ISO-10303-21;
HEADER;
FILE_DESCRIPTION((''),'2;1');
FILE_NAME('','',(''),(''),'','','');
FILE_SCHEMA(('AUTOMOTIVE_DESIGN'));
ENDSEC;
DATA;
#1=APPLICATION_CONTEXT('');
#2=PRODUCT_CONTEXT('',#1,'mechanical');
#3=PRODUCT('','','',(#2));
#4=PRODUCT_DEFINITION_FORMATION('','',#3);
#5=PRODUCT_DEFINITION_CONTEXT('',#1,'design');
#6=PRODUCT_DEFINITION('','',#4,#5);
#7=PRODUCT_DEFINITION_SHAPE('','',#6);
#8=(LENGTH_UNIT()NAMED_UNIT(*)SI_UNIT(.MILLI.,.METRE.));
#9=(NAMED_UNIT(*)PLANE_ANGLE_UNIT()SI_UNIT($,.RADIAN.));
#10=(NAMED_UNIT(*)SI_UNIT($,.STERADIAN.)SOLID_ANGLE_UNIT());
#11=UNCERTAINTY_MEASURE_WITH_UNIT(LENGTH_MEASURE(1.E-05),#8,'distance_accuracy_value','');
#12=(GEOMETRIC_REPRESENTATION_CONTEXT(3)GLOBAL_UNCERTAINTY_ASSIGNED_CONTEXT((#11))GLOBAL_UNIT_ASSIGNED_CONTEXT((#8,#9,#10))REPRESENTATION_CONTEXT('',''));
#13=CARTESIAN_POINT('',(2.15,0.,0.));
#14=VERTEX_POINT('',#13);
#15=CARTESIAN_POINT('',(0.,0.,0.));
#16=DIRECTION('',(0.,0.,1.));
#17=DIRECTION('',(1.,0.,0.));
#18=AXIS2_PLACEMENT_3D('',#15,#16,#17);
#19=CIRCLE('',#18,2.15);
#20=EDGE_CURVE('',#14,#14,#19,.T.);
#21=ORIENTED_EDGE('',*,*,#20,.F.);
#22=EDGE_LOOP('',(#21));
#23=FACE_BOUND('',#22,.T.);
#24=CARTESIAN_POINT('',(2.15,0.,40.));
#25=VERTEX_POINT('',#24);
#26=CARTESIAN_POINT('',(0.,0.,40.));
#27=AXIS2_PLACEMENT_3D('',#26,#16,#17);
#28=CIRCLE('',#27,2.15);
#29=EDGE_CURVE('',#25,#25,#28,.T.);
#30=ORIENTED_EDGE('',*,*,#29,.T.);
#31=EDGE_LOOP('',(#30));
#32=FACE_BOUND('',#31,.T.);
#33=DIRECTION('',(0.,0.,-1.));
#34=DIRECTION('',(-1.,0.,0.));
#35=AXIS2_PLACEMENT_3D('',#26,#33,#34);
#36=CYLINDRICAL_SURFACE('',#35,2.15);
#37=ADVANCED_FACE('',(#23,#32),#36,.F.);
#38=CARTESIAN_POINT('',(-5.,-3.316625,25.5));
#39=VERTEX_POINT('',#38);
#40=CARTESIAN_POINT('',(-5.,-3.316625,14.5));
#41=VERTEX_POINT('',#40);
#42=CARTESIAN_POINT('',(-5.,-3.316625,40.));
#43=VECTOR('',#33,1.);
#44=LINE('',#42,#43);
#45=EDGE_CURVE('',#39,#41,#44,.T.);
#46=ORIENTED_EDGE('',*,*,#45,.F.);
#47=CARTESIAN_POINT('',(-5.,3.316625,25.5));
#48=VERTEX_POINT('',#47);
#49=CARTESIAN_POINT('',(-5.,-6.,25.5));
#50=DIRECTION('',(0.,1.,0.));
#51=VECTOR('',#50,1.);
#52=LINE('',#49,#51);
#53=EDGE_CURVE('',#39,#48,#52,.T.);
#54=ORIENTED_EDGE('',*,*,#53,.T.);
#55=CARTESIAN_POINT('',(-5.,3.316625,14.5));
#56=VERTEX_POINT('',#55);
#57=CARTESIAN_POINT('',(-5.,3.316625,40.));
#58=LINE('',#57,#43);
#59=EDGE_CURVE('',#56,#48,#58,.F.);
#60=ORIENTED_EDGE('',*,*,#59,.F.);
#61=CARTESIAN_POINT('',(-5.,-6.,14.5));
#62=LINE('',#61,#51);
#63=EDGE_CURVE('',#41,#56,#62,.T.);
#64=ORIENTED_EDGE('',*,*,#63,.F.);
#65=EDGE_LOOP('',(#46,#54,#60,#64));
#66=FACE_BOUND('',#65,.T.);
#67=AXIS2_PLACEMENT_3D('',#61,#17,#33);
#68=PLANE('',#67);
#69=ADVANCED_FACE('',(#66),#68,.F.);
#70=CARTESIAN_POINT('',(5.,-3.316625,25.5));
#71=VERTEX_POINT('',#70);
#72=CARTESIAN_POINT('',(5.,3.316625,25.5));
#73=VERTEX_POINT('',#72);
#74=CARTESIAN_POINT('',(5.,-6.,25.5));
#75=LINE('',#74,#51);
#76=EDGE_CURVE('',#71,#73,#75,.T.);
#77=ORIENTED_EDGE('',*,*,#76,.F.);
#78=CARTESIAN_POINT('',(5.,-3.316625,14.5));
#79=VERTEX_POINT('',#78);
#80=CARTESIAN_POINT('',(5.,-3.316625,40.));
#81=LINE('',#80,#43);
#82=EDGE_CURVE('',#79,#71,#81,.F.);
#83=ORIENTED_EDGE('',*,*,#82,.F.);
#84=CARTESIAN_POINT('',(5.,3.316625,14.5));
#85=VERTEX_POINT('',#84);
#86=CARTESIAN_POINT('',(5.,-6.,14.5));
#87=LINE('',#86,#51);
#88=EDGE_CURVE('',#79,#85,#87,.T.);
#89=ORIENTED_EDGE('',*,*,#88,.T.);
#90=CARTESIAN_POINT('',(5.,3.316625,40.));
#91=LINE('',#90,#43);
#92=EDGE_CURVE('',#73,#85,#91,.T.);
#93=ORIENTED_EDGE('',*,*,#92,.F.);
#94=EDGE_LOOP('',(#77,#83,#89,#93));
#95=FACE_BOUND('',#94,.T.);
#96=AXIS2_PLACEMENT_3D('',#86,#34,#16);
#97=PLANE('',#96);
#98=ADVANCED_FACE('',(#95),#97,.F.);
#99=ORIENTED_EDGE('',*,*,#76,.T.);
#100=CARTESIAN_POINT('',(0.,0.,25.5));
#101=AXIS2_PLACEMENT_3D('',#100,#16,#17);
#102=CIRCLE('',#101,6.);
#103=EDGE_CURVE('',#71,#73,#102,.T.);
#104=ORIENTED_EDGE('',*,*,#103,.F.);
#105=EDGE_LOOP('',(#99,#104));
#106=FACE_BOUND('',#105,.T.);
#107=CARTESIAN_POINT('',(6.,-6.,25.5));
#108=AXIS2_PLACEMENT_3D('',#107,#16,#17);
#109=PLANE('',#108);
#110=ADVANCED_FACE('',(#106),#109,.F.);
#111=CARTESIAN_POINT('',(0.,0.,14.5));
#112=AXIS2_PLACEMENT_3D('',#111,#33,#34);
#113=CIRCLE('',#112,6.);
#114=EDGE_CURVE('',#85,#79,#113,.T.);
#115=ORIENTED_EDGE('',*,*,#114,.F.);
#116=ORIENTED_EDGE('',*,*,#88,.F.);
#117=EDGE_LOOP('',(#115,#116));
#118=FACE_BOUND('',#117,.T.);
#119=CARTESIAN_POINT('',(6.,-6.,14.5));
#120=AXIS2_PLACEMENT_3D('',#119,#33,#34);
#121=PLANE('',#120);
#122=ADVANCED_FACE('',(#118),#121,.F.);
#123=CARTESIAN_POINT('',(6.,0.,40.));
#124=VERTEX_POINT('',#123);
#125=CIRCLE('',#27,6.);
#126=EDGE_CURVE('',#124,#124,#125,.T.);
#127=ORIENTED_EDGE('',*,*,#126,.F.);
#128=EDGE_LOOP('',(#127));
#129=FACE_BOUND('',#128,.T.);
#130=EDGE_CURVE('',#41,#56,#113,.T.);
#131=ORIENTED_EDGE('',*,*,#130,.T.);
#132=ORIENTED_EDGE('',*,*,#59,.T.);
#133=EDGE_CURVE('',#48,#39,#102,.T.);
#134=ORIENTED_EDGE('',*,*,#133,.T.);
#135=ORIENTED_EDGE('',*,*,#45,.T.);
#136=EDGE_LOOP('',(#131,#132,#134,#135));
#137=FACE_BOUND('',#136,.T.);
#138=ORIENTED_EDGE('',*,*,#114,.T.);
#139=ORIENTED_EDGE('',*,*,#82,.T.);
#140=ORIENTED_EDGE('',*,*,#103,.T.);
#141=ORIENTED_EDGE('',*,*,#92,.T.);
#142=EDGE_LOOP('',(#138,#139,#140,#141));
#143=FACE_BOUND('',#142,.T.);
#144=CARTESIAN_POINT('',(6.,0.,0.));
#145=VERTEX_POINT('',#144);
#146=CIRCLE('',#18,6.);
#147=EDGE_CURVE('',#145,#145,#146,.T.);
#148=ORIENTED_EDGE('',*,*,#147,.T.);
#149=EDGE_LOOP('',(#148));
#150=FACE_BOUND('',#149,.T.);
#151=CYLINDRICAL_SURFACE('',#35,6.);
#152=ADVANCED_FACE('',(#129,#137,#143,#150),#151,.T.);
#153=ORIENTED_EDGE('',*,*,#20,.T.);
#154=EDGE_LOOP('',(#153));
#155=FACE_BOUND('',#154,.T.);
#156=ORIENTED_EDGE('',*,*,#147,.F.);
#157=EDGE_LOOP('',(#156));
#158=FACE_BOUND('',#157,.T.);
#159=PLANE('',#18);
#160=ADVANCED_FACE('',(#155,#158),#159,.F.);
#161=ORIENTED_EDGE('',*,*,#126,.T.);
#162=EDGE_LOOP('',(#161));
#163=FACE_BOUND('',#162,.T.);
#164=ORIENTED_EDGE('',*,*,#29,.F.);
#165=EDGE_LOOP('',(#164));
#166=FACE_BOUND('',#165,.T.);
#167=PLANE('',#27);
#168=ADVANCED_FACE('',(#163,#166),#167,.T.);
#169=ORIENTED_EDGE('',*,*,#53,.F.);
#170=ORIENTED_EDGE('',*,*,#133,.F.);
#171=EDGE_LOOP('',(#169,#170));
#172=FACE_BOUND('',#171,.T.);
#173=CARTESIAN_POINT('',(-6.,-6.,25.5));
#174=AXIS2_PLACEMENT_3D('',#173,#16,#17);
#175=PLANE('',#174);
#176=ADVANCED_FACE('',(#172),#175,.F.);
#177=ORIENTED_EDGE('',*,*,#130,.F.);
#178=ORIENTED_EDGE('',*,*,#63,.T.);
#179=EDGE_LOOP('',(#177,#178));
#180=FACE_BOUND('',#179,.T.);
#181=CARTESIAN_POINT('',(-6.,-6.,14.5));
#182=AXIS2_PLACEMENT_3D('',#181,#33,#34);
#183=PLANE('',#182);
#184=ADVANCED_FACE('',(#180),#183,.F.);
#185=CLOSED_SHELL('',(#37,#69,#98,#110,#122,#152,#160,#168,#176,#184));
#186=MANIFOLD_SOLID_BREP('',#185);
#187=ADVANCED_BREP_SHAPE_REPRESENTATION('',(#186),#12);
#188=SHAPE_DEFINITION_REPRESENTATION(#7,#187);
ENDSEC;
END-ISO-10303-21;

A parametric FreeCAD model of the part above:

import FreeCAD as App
import Part
import Sketcher
Q = App.Units.Quantity

doc = App.newDocument("Part")
body = doc.addObject("PartDesign::Body", "Body")

sketch1 = body.newObject("Sketcher::SketchObject", "Sketch")
sketch1.AttachmentSupport = (doc.getObject("XY_Plane"), [""])
sketch1.MapMode = "FlatFace"
sketch1.addGeometry(Part.Circle(App.Vector(0, 0, 0), App.Vector(0, 0, 1), 6), False)
sketch1.addGeometry(Part.Circle(App.Vector(0, 0, 0), App.Vector(0, 0, 1), 2.15), False)
sketch1.addConstraint(Sketcher.Constraint("Coincident", 0, 3, -1, 1))
sketch1.addConstraint(Sketcher.Constraint("Coincident", 1, 3, -1, 1))
sketch1.addConstraint(Sketcher.Constraint("Diameter", 0, Q("12 mm")))
sketch1.addConstraint(Sketcher.Constraint("Diameter", 1, Q("4.3 mm")))
pad1 = body.newObject("PartDesign::Pad", "Pad")
pad1.Profile = sketch1
pad1.Length = 40

sketch2 = body.newObject("Sketcher::SketchObject", "Sketch001")
sketch2.AttachmentSupport = (doc.getObject("XZ_Plane"), [""])
sketch2.MapMode = "FlatFace"
sketch2.addGeometry(Part.LineSegment(App.Vector(-6, 14.5, 0), App.Vector(-6, 25.5, 0)), False)
sketch2.addGeometry(Part.LineSegment(App.Vector(-6, 25.5, 0), App.Vector(-5, 25.5, 0)), False)
sketch2.addGeometry(Part.LineSegment(App.Vector(-5, 25.5, 0), App.Vector(-5, 14.5, 0)), False)
sketch2.addGeometry(Part.LineSegment(App.Vector(-5, 14.5, 0), App.Vector(-6, 14.5, 0)), False)
sketch2.addGeometry(Part.LineSegment(App.Vector(5, 14.5, 0), App.Vector(5, 25.5, 0)), False)
sketch2.addGeometry(Part.LineSegment(App.Vector(5, 25.5, 0), App.Vector(6, 25.5, 0)), False)
sketch2.addGeometry(Part.LineSegment(App.Vector(6, 25.5, 0), App.Vector(6, 14.5, 0)), False)
sketch2.addGeometry(Part.LineSegment(App.Vector(6, 14.5, 0), App.Vector(5, 14.5, 0)), False)
sketch2.addConstraint(Sketcher.Constraint("Coincident", 0, 2, 1, 1))
sketch2.addConstraint(Sketcher.Constraint("Coincident", 1, 2, 2, 1))
sketch2.addConstraint(Sketcher.Constraint("Coincident", 2, 2, 3, 1))
sketch2.addConstraint(Sketcher.Constraint("Coincident", 3, 2, 0, 1))
sketch2.addConstraint(Sketcher.Constraint("Coincident", 4, 2, 5, 1))
sketch2.addConstraint(Sketcher.Constraint("Coincident", 5, 2, 6, 1))
sketch2.addConstraint(Sketcher.Constraint("Coincident", 6, 2, 7, 1))
sketch2.addConstraint(Sketcher.Constraint("Coincident", 7, 2, 4, 1))
sketch2.addConstraint(Sketcher.Constraint("Vertical", 0))
sketch2.addConstraint(Sketcher.Constraint("Horizontal", 1))
sketch2.addConstraint(Sketcher.Constraint("Vertical", 2))
sketch2.addConstraint(Sketcher.Constraint("Horizontal", 3))
sketch2.addConstraint(Sketcher.Constraint("Vertical", 4))
sketch2.addConstraint(Sketcher.Constraint("Horizontal", 5))
sketch2.addConstraint(Sketcher.Constraint("Vertical", 6))
sketch2.addConstraint(Sketcher.Constraint("Horizontal", 7))
sketch2.addConstraint(Sketcher.Constraint("Symmetric", 1, 2, 4, 2, -2))
sketch2.addConstraint(Sketcher.Constraint("Symmetric", 3, 2, 6, 2, -2))
sketch2.addConstraint(Sketcher.Constraint("DistanceX", 1, 1, 1, 2, Q("1 mm")))
sketch2.addConstraint(Sketcher.Constraint("DistanceY", 0, 1, 0, 2, Q("11 mm")))
sketch2.addConstraint(Sketcher.Constraint("DistanceX", 0, 2, -1, 1, Q("6 mm")))
sketch2.addConstraint(Sketcher.Constraint("DistanceY", -1, 1, 0, 2, Q("25.5 mm")))
pocket1 = body.newObject("PartDesign::Pocket", "Pocket")
pocket1.Profile = sketch2
pocket1.Type = "ThroughAll"
pocket1.Midplane = True

doc.recompute()
